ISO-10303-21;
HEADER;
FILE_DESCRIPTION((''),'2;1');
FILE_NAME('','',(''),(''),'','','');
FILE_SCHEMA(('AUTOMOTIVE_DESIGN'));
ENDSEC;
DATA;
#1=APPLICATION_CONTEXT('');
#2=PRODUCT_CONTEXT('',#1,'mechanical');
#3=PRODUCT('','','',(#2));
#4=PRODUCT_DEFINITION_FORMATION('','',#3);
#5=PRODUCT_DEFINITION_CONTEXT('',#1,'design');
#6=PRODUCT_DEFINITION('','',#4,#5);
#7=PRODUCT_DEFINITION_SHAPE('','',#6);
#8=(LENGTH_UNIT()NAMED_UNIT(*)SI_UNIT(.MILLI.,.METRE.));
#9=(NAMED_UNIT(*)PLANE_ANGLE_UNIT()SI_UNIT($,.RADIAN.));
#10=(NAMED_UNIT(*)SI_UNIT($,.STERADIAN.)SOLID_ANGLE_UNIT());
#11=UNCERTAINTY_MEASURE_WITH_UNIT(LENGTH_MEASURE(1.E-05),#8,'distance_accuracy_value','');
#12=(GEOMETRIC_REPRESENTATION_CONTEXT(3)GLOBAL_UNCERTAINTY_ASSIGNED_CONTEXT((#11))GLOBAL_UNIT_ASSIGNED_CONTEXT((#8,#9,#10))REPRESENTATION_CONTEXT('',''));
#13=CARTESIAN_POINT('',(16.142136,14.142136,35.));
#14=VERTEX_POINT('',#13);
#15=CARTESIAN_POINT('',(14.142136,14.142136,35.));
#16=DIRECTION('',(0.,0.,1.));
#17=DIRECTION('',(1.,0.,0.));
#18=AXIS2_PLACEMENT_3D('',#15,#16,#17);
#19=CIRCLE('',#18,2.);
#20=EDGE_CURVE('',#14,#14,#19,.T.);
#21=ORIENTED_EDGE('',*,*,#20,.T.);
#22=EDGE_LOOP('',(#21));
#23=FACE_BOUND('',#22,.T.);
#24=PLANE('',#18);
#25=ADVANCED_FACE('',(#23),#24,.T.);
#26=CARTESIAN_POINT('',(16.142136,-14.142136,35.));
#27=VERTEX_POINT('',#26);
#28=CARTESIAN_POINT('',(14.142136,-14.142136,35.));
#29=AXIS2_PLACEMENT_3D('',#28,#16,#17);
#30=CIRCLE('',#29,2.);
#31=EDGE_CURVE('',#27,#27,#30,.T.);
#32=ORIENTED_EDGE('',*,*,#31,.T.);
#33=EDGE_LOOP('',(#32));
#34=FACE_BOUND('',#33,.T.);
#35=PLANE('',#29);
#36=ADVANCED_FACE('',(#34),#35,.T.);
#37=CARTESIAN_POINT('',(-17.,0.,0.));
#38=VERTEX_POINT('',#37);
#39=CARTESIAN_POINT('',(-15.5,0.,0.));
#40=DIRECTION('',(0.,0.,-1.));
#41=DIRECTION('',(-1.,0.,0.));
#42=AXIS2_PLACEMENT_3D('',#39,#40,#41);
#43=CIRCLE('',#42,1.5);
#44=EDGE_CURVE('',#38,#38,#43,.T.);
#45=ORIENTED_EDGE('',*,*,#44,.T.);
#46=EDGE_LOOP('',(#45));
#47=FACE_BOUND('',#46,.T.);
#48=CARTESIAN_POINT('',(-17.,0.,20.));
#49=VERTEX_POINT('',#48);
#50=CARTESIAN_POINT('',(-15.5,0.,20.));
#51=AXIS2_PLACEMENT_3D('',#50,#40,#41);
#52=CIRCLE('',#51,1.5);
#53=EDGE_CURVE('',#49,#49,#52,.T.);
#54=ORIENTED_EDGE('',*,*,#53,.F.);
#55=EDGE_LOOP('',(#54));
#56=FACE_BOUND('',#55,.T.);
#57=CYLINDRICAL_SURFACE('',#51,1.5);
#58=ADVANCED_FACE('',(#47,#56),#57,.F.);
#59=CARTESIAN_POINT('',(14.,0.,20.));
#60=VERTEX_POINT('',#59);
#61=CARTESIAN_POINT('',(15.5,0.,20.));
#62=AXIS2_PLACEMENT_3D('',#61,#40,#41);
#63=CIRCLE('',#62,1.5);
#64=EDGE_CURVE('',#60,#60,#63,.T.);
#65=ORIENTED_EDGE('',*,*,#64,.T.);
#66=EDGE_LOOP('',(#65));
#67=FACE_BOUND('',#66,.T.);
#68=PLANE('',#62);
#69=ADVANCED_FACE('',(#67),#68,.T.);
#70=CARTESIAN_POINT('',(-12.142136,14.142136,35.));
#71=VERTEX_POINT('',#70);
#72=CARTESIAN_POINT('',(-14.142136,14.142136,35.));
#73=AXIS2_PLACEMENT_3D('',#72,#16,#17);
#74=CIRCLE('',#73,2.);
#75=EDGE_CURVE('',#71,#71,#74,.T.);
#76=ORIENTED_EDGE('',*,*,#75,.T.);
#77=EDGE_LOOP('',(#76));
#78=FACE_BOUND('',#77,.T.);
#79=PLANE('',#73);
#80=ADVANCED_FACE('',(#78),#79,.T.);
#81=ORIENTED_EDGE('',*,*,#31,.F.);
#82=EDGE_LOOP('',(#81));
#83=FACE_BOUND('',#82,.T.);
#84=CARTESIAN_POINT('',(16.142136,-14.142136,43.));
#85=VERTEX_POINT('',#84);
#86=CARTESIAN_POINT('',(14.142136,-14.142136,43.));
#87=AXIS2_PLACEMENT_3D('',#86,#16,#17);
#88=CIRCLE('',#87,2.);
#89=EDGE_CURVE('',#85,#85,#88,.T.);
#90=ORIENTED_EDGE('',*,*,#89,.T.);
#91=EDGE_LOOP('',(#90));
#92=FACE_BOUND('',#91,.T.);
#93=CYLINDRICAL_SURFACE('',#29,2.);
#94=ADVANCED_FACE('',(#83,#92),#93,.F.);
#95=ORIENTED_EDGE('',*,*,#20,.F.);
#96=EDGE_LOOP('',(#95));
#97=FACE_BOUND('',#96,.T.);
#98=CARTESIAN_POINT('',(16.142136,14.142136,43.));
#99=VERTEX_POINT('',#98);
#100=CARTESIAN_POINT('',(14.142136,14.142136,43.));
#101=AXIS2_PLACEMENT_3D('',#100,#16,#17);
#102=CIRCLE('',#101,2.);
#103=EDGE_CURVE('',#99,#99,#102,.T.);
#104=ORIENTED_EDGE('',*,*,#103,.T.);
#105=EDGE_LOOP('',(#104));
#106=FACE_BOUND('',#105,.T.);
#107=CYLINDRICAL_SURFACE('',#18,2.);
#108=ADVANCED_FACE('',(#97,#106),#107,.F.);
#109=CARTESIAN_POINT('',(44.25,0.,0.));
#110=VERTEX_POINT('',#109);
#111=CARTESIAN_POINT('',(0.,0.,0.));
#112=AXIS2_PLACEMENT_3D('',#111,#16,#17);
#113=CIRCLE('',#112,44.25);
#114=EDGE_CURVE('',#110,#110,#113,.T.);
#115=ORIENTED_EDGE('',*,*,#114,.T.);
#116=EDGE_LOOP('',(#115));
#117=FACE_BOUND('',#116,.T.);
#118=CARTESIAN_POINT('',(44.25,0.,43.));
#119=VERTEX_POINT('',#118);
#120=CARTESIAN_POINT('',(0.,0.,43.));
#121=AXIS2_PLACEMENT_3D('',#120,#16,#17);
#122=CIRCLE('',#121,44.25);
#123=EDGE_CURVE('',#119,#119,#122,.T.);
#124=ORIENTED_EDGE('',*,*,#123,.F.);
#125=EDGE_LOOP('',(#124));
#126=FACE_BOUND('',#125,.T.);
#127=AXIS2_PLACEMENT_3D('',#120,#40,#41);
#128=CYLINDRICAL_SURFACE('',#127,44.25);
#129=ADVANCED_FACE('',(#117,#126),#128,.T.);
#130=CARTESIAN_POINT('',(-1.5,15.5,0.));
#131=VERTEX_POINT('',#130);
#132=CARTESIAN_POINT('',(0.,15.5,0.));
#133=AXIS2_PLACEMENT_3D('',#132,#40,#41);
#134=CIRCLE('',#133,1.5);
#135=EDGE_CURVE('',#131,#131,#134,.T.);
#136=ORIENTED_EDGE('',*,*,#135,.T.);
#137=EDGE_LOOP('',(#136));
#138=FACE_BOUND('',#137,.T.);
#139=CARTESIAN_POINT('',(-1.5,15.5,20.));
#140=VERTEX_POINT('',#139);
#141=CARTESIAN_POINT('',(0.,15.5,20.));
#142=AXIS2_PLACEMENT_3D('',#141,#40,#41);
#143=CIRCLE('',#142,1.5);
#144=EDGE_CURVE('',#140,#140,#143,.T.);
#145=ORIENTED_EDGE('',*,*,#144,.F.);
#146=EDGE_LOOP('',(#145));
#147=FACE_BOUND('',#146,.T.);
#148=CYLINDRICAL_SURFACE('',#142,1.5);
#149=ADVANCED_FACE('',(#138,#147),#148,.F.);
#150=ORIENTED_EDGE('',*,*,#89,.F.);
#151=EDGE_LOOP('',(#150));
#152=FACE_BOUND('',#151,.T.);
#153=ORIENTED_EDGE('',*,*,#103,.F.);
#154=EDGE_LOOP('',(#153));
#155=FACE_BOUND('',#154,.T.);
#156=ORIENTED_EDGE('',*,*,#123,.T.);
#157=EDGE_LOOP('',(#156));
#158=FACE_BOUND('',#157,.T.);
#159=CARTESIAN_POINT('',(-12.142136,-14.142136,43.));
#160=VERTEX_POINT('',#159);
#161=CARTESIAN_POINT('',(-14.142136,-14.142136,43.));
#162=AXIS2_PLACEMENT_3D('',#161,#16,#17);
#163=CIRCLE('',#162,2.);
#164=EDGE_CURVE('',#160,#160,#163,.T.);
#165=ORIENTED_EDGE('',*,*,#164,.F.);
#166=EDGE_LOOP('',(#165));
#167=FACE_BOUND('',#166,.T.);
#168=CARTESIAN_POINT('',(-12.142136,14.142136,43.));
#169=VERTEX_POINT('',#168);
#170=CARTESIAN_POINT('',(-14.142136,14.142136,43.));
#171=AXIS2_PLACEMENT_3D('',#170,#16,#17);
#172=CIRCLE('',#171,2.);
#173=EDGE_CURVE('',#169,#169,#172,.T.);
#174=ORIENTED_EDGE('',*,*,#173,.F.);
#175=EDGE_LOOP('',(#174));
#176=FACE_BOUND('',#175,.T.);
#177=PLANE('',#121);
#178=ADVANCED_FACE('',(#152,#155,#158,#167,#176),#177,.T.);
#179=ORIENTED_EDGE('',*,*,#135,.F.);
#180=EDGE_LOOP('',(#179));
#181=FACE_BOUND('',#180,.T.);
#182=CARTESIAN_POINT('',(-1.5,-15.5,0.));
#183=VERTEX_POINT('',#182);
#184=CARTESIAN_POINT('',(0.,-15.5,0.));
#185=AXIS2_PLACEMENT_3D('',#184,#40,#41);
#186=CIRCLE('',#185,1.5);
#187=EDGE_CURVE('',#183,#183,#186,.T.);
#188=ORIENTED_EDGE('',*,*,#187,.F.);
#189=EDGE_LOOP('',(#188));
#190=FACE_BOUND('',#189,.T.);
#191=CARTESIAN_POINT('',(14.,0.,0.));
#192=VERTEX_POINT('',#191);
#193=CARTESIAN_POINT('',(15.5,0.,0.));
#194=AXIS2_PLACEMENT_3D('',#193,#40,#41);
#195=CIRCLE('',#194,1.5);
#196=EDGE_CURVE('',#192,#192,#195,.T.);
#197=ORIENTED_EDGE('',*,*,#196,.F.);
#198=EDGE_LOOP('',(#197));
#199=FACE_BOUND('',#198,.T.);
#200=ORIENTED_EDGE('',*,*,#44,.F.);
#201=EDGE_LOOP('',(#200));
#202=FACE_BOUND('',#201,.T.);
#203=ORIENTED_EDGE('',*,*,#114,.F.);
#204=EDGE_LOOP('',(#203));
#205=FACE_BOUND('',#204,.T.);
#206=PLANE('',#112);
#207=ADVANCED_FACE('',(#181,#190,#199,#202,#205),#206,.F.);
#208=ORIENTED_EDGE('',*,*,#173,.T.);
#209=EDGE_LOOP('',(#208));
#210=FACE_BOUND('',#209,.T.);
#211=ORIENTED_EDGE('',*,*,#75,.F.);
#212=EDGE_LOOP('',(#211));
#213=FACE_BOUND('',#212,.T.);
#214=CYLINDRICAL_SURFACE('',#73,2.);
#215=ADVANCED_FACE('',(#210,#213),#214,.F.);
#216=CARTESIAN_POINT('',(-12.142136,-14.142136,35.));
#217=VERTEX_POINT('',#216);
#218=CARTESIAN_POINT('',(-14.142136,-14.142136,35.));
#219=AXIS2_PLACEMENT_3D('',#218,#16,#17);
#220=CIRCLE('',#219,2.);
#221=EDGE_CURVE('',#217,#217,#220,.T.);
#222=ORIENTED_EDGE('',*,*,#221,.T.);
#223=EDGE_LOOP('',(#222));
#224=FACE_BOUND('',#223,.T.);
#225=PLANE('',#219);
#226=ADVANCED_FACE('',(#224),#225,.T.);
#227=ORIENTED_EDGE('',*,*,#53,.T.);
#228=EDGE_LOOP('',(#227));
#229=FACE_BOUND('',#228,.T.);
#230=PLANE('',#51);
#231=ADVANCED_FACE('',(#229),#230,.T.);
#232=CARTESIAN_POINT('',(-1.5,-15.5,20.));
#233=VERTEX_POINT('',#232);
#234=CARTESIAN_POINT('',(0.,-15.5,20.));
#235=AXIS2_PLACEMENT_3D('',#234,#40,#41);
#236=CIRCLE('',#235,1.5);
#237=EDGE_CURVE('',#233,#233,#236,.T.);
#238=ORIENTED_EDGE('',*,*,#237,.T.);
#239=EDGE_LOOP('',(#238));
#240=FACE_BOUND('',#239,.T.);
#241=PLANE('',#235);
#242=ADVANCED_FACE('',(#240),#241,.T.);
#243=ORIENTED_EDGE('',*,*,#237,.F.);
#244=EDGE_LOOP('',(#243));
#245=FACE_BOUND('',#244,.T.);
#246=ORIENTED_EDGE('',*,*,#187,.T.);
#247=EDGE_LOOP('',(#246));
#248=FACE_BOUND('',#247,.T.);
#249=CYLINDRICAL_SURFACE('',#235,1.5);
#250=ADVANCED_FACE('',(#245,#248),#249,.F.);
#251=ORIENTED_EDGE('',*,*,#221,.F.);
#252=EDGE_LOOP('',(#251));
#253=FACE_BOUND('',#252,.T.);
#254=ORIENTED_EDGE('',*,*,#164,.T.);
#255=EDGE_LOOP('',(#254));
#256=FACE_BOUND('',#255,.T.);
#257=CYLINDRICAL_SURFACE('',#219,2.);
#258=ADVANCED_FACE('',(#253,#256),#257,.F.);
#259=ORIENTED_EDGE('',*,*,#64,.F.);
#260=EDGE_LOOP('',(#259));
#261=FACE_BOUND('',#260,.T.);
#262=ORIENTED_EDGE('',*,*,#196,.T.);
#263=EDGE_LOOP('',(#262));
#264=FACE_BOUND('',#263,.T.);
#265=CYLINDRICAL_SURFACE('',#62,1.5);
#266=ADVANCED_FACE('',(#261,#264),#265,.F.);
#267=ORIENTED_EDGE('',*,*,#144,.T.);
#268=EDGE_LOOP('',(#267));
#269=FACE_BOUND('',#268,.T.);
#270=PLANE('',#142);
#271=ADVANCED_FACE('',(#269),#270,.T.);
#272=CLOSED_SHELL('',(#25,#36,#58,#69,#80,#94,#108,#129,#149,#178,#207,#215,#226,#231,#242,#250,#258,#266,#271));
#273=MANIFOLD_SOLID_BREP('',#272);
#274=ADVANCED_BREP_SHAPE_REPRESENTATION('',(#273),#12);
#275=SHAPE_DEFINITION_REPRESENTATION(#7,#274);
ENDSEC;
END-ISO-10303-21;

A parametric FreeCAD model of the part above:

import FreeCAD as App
import Part
import Sketcher
from FreeCAD import Vector

doc = App.newDocument("Part")
params = doc.addObject("Spreadsheet::Sheet", "Params")
for row, (alias, value) in enumerate([
    ("sketch1_diameter", "88.5 mm"),
    ("pad1_length", "43 mm"),
    ("sketch2_diameter", "4 mm"),
    ("pocket1_length", "8 mm"),
    ("sketch3_diameter", "3 mm"),
    ("pocket2_length", "20 mm"),
], start=1):
    params.set(f"A{row}", alias)
    params.set(f"B{row}", "=" + value)
    params.setAlias(f"B{row}", alias)

body = doc.addObject("PartDesign::Body", "Body")

# Sketch on XY plane
sketch1 = body.newObject("Sketcher::SketchObject", "Sketch")
sketch1.AttachmentSupport = (doc.getObject("XY_Plane"), [""])
sketch1.MapMode = "FlatFace"
sketch1.addGeometry(Part.Circle(Vector(0, 0, 0), Vector(0, 0, 1), 44), False)
sketch1.addConstraint(Sketcher.Constraint("Coincident", 0, 3, -1, 1))
sketch1.addConstraint(Sketcher.Constraint("Diameter", 0, 88.5))
sketch1.setExpression("Constraints[1]", "Params.sketch1_diameter")
pad1 = body.newObject("PartDesign::Pad", "Pad")
pad1.Profile = sketch1
pad1.setExpression("Length", "Params.pad1_length")

# Sketch on XY plane
sketch2 = body.newObject("Sketcher::SketchObject", "Sketch001")
sketch2.AttachmentSupport = (doc.getObject("XY_Plane"), [""])
sketch2.MapMode = "FlatFace"
sketch2.AttachmentOffset = App.Placement(Vector(0, 0, 43), App.Rotation())
sketch2.addGeometry(Part.Circle(Vector(-14.1, 14.1, 0), Vector(0, 0, 1), 2), False)
sketch2.addGeometry(Part.Circle(Vector(14.1, 14.1, 0), Vector(0, 0, 1), 2), False)
sketch2.addGeometry(Part.Circle(Vector(-14.1, -14.1, 0), Vector(0, 0, 1), 2), False)
sketch2.addGeometry(Part.Circle(Vector(14.1, -14.1, 0), Vector(0, 0, 1), 2), False)
sketch2.addConstraint(Sketcher.Constraint("Equal", 0, 1))
sketch2.addConstraint(Sketcher.Constraint("Equal", 1, 2))
sketch2.addConstraint(Sketcher.Constraint("Equal", 2, 3))
sketch2.addConstraint(Sketcher.Constraint("Symmetric", 1, 3, 2, 3, -1, 1))
sketch2.addConstraint(Sketcher.Constraint("Symmetric", 0, 3, 3, 3, -1, 1))
sketch2.addConstraint(Sketcher.Constraint("Symmetric", 0, 3, 1, 3, -2))
sketch2.addConstraint(Sketcher.Constraint("Diameter", 0, 4.0))
sketch2.addConstraint(Sketcher.Constraint("DistanceX", 0, 3, 1, 3, 28.284271))
sketch2.addConstraint(Sketcher.Constraint("DistanceY", 2, 3, 0, 3, 28.284271))
sketch2.setExpression("Constraints[6]", "Params.sketch2_diameter")
pocket1 = body.newObject("PartDesign::Pocket", "Pocket")
pocket1.Profile = sketch2
pocket1.setExpression("Length", "Params.pocket1_length")

# Sketch on XY plane
sketch3 = body.newObject("Sketcher::SketchObject", "Sketch002")
sketch3.AttachmentSupport = (doc.getObject("XY_Plane"), [""])
sketch3.MapMode = "FlatFace"
sketch3.addGeometry(Part.Circle(Vector(0, 15.5, 0), Vector(0, 0, 1), 1.5), False)
sketch3.addGeometry(Part.Circle(Vector(-15.5, 0, 0), Vector(0, 0, 1), 1.5), False)
sketch3.addGeometry(Part.Circle(Vector(15.5, 0, 0), Vector(0, 0, 1), 1.5), False)
sketch3.addGeometry(Part.Circle(Vector(0, -15.5, 0), Vector(0, 0, 1), 1.5), False)
sketch3.addConstraint(Sketcher.Constraint("Equal", 0, 1))
sketch3.addConstraint(Sketcher.Constraint("Equal", 1, 2))
sketch3.addConstraint(Sketcher.Constraint("Equal", 2, 3))
sketch3.addConstraint(Sketcher.Constraint("Symmetric", 1, 3, 2, 3, -1, 1))
sketch3.addConstraint(Sketcher.Constraint("Symmetric", 0, 3, 3, 3, -1, 1))
sketch3.addConstraint(Sketcher.Constraint("PointOnObject", 0, 3, -2))
sketch3.addConstraint(Sketcher.Constraint("PointOnObject", 1, 3, -1))
sketch3.addConstraint(Sketcher.Constraint("Diameter", 0, 3.0))
sketch3.addConstraint(Sketcher.Constraint("DistanceX", 1, 3, 2, 3, 31.0))
sketch3.addConstraint(Sketcher.Constraint("DistanceY", 3, 3, 0, 3, 31.0))
sketch3.setExpression("Constraints[7]", "Params.sketch3_diameter")
pocket2 = body.newObject("PartDesign::Pocket", "Pocket001")
pocket2.Profile = sketch3
pocket2.setExpression("Length", "Params.pocket2_length")
pocket2.Reversed = True

doc.recompute()
